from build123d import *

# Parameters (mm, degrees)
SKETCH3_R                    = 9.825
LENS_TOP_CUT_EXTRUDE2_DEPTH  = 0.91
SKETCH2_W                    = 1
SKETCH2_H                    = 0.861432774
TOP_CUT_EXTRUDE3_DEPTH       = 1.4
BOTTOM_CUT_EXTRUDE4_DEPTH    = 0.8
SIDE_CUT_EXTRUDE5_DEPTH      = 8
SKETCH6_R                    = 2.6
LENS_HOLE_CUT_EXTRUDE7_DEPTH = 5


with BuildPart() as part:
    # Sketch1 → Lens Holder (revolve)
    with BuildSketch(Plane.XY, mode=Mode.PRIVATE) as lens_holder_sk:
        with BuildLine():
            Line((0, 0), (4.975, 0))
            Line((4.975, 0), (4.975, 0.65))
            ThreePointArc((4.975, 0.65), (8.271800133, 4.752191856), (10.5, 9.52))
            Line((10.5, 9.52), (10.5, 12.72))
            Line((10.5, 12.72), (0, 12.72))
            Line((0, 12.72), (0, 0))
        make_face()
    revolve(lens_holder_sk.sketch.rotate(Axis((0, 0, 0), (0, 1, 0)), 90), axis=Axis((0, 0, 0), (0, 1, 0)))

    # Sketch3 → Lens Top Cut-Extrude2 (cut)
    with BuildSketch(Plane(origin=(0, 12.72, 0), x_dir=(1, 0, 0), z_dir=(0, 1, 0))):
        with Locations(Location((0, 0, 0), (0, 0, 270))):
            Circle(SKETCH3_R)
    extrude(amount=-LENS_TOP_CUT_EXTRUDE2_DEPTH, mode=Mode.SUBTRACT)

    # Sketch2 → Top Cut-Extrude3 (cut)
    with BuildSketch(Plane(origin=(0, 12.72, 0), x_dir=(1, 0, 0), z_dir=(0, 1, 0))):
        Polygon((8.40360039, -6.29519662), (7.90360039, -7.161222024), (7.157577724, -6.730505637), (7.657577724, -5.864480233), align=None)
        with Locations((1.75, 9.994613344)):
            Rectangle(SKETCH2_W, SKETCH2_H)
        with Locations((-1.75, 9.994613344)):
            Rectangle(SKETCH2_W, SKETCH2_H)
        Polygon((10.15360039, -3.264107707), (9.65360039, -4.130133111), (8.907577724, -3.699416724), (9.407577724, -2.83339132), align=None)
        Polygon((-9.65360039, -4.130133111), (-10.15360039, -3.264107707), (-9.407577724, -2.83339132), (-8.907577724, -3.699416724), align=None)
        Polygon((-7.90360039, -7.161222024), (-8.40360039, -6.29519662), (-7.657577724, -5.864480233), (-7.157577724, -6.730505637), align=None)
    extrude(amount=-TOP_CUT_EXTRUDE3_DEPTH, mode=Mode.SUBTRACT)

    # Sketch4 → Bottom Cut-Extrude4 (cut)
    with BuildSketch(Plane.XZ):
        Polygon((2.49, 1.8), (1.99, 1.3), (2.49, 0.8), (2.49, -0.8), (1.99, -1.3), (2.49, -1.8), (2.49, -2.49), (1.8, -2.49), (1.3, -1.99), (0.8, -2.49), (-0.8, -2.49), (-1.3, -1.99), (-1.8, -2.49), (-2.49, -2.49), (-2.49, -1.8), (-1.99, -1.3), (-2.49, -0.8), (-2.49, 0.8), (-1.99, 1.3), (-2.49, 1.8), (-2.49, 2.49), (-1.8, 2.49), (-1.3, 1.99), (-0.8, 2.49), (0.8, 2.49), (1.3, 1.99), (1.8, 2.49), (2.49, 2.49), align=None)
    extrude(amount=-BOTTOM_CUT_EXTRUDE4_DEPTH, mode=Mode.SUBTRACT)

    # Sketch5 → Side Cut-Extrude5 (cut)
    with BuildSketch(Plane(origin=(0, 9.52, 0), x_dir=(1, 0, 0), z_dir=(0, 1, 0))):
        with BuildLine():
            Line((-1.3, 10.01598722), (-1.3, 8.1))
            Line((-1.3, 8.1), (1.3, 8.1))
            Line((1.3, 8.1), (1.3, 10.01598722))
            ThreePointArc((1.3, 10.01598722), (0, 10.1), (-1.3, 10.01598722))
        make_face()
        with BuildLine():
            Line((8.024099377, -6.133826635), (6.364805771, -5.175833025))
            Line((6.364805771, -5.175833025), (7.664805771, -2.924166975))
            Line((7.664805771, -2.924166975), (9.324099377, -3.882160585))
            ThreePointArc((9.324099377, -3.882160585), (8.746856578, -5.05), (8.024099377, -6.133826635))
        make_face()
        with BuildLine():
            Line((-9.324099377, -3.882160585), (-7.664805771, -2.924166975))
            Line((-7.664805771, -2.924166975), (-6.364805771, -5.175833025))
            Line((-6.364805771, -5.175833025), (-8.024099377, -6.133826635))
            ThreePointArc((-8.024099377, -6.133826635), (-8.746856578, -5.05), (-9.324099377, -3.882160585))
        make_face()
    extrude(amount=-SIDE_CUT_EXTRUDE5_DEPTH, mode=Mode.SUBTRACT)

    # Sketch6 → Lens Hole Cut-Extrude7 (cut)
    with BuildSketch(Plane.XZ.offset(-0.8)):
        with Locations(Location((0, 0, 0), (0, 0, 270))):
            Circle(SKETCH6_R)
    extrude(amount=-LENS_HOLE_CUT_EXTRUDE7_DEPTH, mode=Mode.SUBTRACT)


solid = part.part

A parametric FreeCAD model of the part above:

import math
import FreeCAD as App
import Part
import Sketcher

V = App.Vector
Q = App.Units.Quantity

doc = App.newDocument("Part")
params = doc.addObject("Spreadsheet::Sheet", "Params")
for row, (alias, value) in enumerate([
    ("sketch1_radius", "22 mm"),
    ("sketch1_width", "10.5 mm"),
    ("sketch1_height", "3.2 mm"),
    ("sketch1_height2", "0.65 mm"),
    ("sketch1_height3", "12.72 mm"),
    ("revolution_angle", "360 deg"),
    ("sketch2_diameter", "19.65 mm"),
    ("pocket1_length", "0.91 mm"),
    ("sketch3_width", "1 mm"),
    ("sketch3_length", "1 mm"),
    ("pocket2_length", "1.4 mm"),
    ("sketch4_width", "1.6 mm"),
    ("sketch4_width2", "0.69 mm"),
    ("pocket3_length", "0.8 mm"),
    ("sketch5_radius", "10.1 mm"),
    ("sketch5_width", "2.6 mm"),
    ("sketch5_length", "2.6 mm"),
    ("pocket4_length", "8 mm"),
    ("sketch6_diameter", "5.2 mm"),
    ("pocket5_length", "5 mm"),
], start=1):
    params.set(f"A{row}", alias)
    params.set(f"B{row}", "=" + value)
    params.setAlias(f"B{row}", alias)

body = doc.addObject("PartDesign::Body", "Body")

sketch1 = doc.addObject("Sketcher::SketchObject", "Sketch")
body.addObject(sketch1)
sketch1.AttachmentSupport = (doc.XY_Plane, [""])
sketch1.MapMode = "FlatFace"
sketch1.addGeometry([
    Part.LineSegment(V(0, 0, 0), V(5, 0, 0)),
    Part.LineSegment(V(5, 0, 0), V(5, 0.7, 0)),
    Part.ArcOfCircle(Part.Circle(V(-10.4, 16.4, 0), V(0, 0, 1), 22), math.radians(-46), math.radians(-18)),
    Part.LineSegment(V(10.5, 9.5, 0), V(10.5, 12.7, 0)),
    Part.LineSegment(V(10.5, 12.7, 0), V(0, 12.7, 0)),
    Part.LineSegment(V(0, 12.7, 0), V(0, 0, 0)),
], False)
sketch1.addConstraint([
    Sketcher.Constraint("Coincident", 0, 2, 1, 1),
    Sketcher.Constraint("Coincident", 1, 2, 2, 1),
    Sketcher.Constraint("Coincident", 2, 2, 3, 1),
    Sketcher.Constraint("Coincident", 3, 2, 4, 1),
    Sketcher.Constraint("Coincident", 4, 2, 5, 1),
    Sketcher.Constraint("Coincident", 5, 2, 0, 1),
    Sketcher.Constraint("Horizontal", 0),
    Sketcher.Constraint("Vertical", 1),
    Sketcher.Constraint("Vertical", 3),
    Sketcher.Constraint("Horizontal", 4),
    Sketcher.Constraint("Vertical", 5),
    Sketcher.Constraint("Coincident", 5, 2, -1, 1),
    Sketcher.Constraint("Radius", 2, 22.0),
    Sketcher.Constraint("DistanceX", 4, 2, 4, 1, 10.5),
    Sketcher.Constraint("DistanceY", 3, 1, 3, 2, 3.2),
    Sketcher.Constraint("DistanceY", 1, 1, 1, 2, 0.65),
    Sketcher.Constraint("DistanceY", 5, 2, 5, 1, 12.72),
    Sketcher.Constraint("DistanceX", 0, 1, 0, 2, 4.975),
])
sketch1.setExpression("Constraints[12]", "Params.sketch1_radius")
sketch1.setExpression("Constraints[13]", "Params.sketch1_width")
sketch1.setExpression("Constraints[14]", "Params.sketch1_height")
sketch1.setExpression("Constraints[15]", "Params.sketch1_height2")
sketch1.setExpression("Constraints[16]", "Params.sketch1_height3")
revolution = doc.addObject("PartDesign::Revolution", "Revolution")
body.addObject(revolution)
revolution.Profile = sketch1
revolution.ReferenceAxis = (sketch1, ["V_Axis"])
revolution.setExpression("Angle", "Params.revolution_angle")

sketch2 = doc.addObject("Sketcher::SketchObject", "Sketch001")
body.addObject(sketch2)
sketch2.AttachmentSupport = (doc.XZ_Plane, [""])
sketch2.MapMode = "FlatFace"
sketch2.AttachmentOffset = App.Placement(V(0, 0, -12.72), App.Rotation())
sketch2.addGeometry(Part.Circle(V(0, 0, 0), V(0, 0, 1), 10), False)
sketch2.addConstraint([
    Sketcher.Constraint("Coincident", 0, 3, -1, 1),
    Sketcher.Constraint("Diameter", 0, 19.65),
])
sketch2.setExpression("Constraints[1]", "Params.sketch2_diameter")
pocket1 = doc.addObject("PartDesign::Pocket", "Pocket")
body.addObject(pocket1)
pocket1.Profile = sketch2
pocket1.setExpression("Length", "Params.pocket1_length")
pocket1.Reversed = True

sketch3 = doc.addObject("Sketcher::SketchObject", "Sketch002")
body.addObject(sketch3)
sketch3.AttachmentSupport = (doc.XZ_Plane, [""])
sketch3.MapMode = "FlatFace"
sketch3.AttachmentOffset = App.Placement(V(0, 0, -12.72), App.Rotation())
sketch3.addGeometry([
    Part.LineSegment(V(7.9, 7.2, 0), V(8.4, 6.3, 0)),
    Part.LineSegment(V(8.4, 6.3, 0), V(7.7, 5.9, 0)),
    Part.LineSegment(V(7.7, 5.9, 0), V(7.2, 6.7, 0)),
    Part.LineSegment(V(7.2, 6.7, 0), V(7.9, 7.2, 0)),
    Part.LineSegment(V(1.2, -10.4, 0), V(1.2, -9.6, 0)),
    Part.LineSegment(V(1.2, -9.6, 0), V(2.2, -9.6, 0)),
    Part.LineSegment(V(2.2, -9.6, 0), V(2.2, -10.4, 0)),
    Part.LineSegment(V(2.2, -10.4, 0), V(1.2, -10.4, 0)),
    Part.LineSegment(V(-2.2, -10.4, 0), V(-2.2, -9.6, 0)),
    Part.LineSegment(V(-2.2, -9.6, 0), V(-1.2, -9.6, 0)),
    Part.LineSegment(V(-1.2, -9.6, 0), V(-1.2, -10.4, 0)),
    Part.LineSegment(V(-1.2, -10.4, 0), V(-2.2, -10.4, 0)),
    Part.LineSegment(V(9.7, 4.1, 0), V(10.2, 3.3, 0)),
    Part.LineSegment(V(10.2, 3.3, 0), V(9.4, 2.8, 0)),
    Part.LineSegment(V(9.4, 2.8, 0), V(8.9, 3.7, 0)),
    Part.LineSegment(V(8.9, 3.7, 0), V(9.7, 4.1, 0)),
    Part.LineSegment(V(-10.2, 3.3, 0), V(-9.7, 4.1, 0)),
    Part.LineSegment(V(-9.7, 4.1, 0), V(-8.9, 3.7, 0)),
    Part.LineSegment(V(-8.9, 3.7, 0), V(-9.4, 2.8, 0)),
    Part.LineSegment(V(-9.4, 2.8, 0), V(-10.2, 3.3, 0)),
    Part.LineSegment(V(-8.4, 6.3, 0), V(-7.9, 7.2, 0)),
    Part.LineSegment(V(-7.9, 7.2, 0), V(-7.2, 6.7, 0)),
    Part.LineSegment(V(-7.2, 6.7, 0), V(-7.7, 5.9, 0)),
    Part.LineSegment(V(-7.7, 5.9, 0), V(-8.4, 6.3, 0)),
], False)
sketch3.addConstraint([
    Sketcher.Constraint("Coincident", 0, 2, 1, 1),
    Sketcher.Constraint("Coincident", 1, 2, 2, 1),
    Sketcher.Constraint("Coincident", 2, 2, 3, 1),
    Sketcher.Constraint("Coincident", 3, 2, 0, 1),
    Sketcher.Constraint("Coincident", 4, 2, 5, 1),
    Sketcher.Constraint("Coincident", 5, 2, 6, 1),
    Sketcher.Constraint("Coincident", 6, 2, 7, 1),
    Sketcher.Constraint("Coincident", 7, 2, 4, 1),
    Sketcher.Constraint("Coincident", 8, 2, 9, 1),
    Sketcher.Constraint("Coincident", 9, 2, 10, 1),
    Sketcher.Constraint("Coincident", 10, 2, 11, 1),
    Sketcher.Constraint("Coincident", 11, 2, 8, 1),
    Sketcher.Constraint("Coincident", 12, 2, 13, 1),
    Sketcher.Constraint("Coincident", 13, 2, 14, 1),
    Sketcher.Constraint("Coincident", 14, 2, 15, 1),
    Sketcher.Constraint("Coincident", 15, 2, 12, 1),
    Sketcher.Constraint("Coincident", 16, 2, 17, 1),
    Sketcher.Constraint("Coincident", 17, 2, 18, 1),
    Sketcher.Constraint("Coincident", 18, 2, 19, 1),
    Sketcher.Constraint("Coincident", 19, 2, 16, 1),
    Sketcher.Constraint("Coincident", 20, 2, 21, 1),
    Sketcher.Constraint("Coincident", 21, 2, 22, 1),
    Sketcher.Constraint("Coincident", 22, 2, 23, 1),
    Sketcher.Constraint("Coincident", 23, 2, 20, 1),
    Sketcher.Constraint("Vertical", 4),
    Sketcher.Constraint("Horizontal", 5),
    Sketcher.Constraint("Vertical", 6),
    Sketcher.Constraint("Horizontal", 7),
    Sketcher.Constraint("Vertical", 8),
    Sketcher.Constraint("Horizontal", 9),
    Sketcher.Constraint("Vertical", 10),
    Sketcher.Constraint("Horizontal", 11),
    Sketcher.Constraint("Symmetric", 5, 2, 8, 2, -2),
    Sketcher.Constraint("Symmetric", 7, 2, 10, 2, -2),
    Sketcher.Constraint("Symmetric", 15, 2, 16, 2, -2),
    Sketcher.Constraint("Symmetric", 14, 2, 17, 2, -2),
    Sketcher.Constraint("Symmetric", 13, 2, 18, 2, -2),
    Sketcher.Constraint("Symmetric", 12, 2, 19, 2, -2),
    Sketcher.Constraint("Symmetric", 3, 2, 20, 2, -2),
    Sketcher.Constraint("Symmetric", 2, 2, 21, 2, -2),
    Sketcher.Constraint("Symmetric", 1, 2, 22, 2, -2),
    Sketcher.Constraint("Symmetric", 0, 2, 23, 2, -2),
    Sketcher.Constraint("Perpendicular", 0, 1),
    Sketcher.Constraint("Perpendicular", 1, 2),
    Sketcher.Constraint("Perpendicular", 2, 3),
    Sketcher.Constraint("Perpendicular", 3, 12),
    Sketcher.Constraint("Perpendicular", 12, 13),
    Sketcher.Constraint("Perpendicular", 13, 14),
    Sketcher.Constraint("Perpendicular", 14, 15),
    Sketcher.Constraint("Equal", 2, 12),
    Sketcher.Constraint("Equal", 3, 13),
    Sketcher.Constraint("DistanceX", 5, 1, 5, 2, 1.0),
    Sketcher.Constraint("Angle", 0, Q("-60 deg")),
    Sketcher.Constraint("Distance", 0, 1.0),
    Sketcher.Constraint("DistanceX", 8, 2, 4, 2, 3.5),
    Sketcher.Constraint("DistanceX", 0, 2, 12, 2, 1.75),
    Sketcher.Constraint("DistanceX", -1, 1, 0, 2, 8.4036),
    Sketcher.Constraint("DistanceY", 4, 1, 4, 2, 0.861433),
    Sketcher.Constraint("DistanceY", -1, 1, 1, 2, 5.86448),
    Sketcher.Constraint("DistanceY", 6, 2, -1, 1, 10.42533),
    Sketcher.Constraint("DistanceY", -1, 1, 13, 2, 2.833391),
    Sketcher.Constraint("DistanceY", 0, 2, 2, 2, 0.435309),
])
sketch3.setExpression("Constraints[51]", "Params.sketch3_width")
sketch3.setExpression("Constraints[53]", "Params.sketch3_length")
pocket2 = doc.addObject("PartDesign::Pocket", "Pocket001")
body.addObject(pocket2)
pocket2.Profile = sketch3
pocket2.setExpression("Length", "Params.pocket2_length")
pocket2.Reversed = True

sketch4 = doc.addObject("Sketcher::SketchObject", "Sketch003")
body.addObject(sketch4)
sketch4.AttachmentSupport = (doc.XZ_Plane, [""])
sketch4.MapMode = "FlatFace"
sketch4.addGeometry([
    Part.LineSegment(V(2, 1.3, 0), V(2.5, 1.8, 0)),
    Part.LineSegment(V(2.5, 1.8, 0), V(2.5, 2.5, 0)),
    Part.LineSegment(V(2.5, 2.5, 0), V(1.8, 2.5, 0)),
    Part.LineSegment(V(1.8, 2.5, 0), V(1.3, 2, 0)),
    Part.LineSegment(V(1.3, 2, 0), V(0.8, 2.5, 0)),
    Part.LineSegment(V(0.8, 2.5, 0), V(-0.8, 2.5, 0)),
    Part.LineSegment(V(-0.8, 2.5, 0), V(-1.3, 2, 0)),
    Part.LineSegment(V(-1.3, 2, 0), V(-1.8, 2.5, 0)),
    Part.LineSegment(V(-1.8, 2.5, 0), V(-2.5, 2.5, 0)),
    Part.LineSegment(V(-2.5, 2.5, 0), V(-2.5, 1.8, 0)),
    Part.LineSegment(V(-2.5, 1.8, 0), V(-2, 1.3, 0)),
    Part.LineSegment(V(-2, 1.3, 0), V(-2.5, 0.8, 0)),
    Part.LineSegment(V(-2.5, 0.8, 0), V(-2.5, -0.8, 0)),
    Part.LineSegment(V(-2.5, -0.8, 0), V(-2, -1.3, 0)),
    Part.LineSegment(V(-2, -1.3, 0), V(-2.5, -1.8, 0)),
    Part.LineSegment(V(-2.5, -1.8, 0), V(-2.5, -2.5, 0)),
    Part.LineSegment(V(-2.5, -2.5, 0), V(-1.8, -2.5, 0)),
    Part.LineSegment(V(-1.8, -2.5, 0), V(-1.3, -2, 0)),
    Part.LineSegment(V(-1.3, -2, 0), V(-0.8, -2.5, 0)),
    Part.LineSegment(V(-0.8, -2.5, 0), V(0.8, -2.5, 0)),
    Part.LineSegment(V(0.8, -2.5, 0), V(1.3, -2, 0)),
    Part.LineSegment(V(1.3, -2, 0), V(1.8, -2.5, 0)),
    Part.LineSegment(V(1.8, -2.5, 0), V(2.5, -2.5, 0)),
    Part.LineSegment(V(2.5, -2.5, 0), V(2.5, -1.8, 0)),
    Part.LineSegment(V(2.5, -1.8, 0), V(2, -1.3, 0)),
    Part.LineSegment(V(2, -1.3, 0), V(2.5, -0.8, 0)),
    Part.LineSegment(V(2.5, -0.8, 0), V(2.5, 0.8, 0)),
    Part.LineSegment(V(2.5, 0.8, 0), V(2, 1.3, 0)),
], False)
sketch4.addConstraint([
    Sketcher.Constraint("Coincident", 0, 2, 1, 1),
    Sketcher.Constraint("Coincident", 1, 2, 2, 1),
    Sketcher.Constraint("Coincident", 2, 2, 3, 1),
    Sketcher.Constraint("Coincident", 3, 2, 4, 1),
    Sketcher.Constraint("Coincident", 4, 2, 5, 1),
    Sketcher.Constraint("Coincident", 5, 2, 6, 1),
    Sketcher.Constraint("Coincident", 6, 2, 7, 1),
    Sketcher.Constraint("Coincident", 7, 2, 8, 1),
    Sketcher.Constraint("Coincident", 8, 2, 9, 1),
    Sketcher.Constraint("Coincident", 9, 2, 10, 1),
    Sketcher.Constraint("Coincident", 10, 2, 11, 1),
    Sketcher.Constraint("Coincident", 11, 2, 12, 1),
    Sketcher.Constraint("Coincident", 12, 2, 13, 1),
    Sketcher.Constraint("Coincident", 13, 2, 14, 1),
    Sketcher.Constraint("Coincident", 14, 2, 15, 1),
    Sketcher.Constraint("Coincident", 15, 2, 16, 1),
    Sketcher.Constraint("Coincident", 16, 2, 17, 1),
    Sketcher.Constraint("Coincident", 17, 2, 18, 1),
    Sketcher.Constraint("Coincident", 18, 2, 19, 1),
    Sketcher.Constraint("Coincident", 19, 2, 20, 1),
    Sketcher.Constraint("Coincident", 20, 2, 21, 1),
    Sketcher.Constraint("Coincident", 21, 2, 22, 1),
    Sketcher.Constraint("Coincident", 22, 2, 23, 1),
    Sketcher.Constraint("Coincident", 23, 2, 24, 1),
    Sketcher.Constraint("Coincident", 24, 2, 25, 1),
    Sketcher.Constraint("Coincident", 25, 2, 26, 1),
    Sketcher.Constraint("Coincident", 26, 2, 27, 1),
    Sketcher.Constraint("Coincident", 27, 2, 0, 1),
    Sketcher.Constraint("Vertical", 1),
    Sketcher.Constraint("Horizontal", 2),
    Sketcher.Constraint("Horizontal", 5),
    Sketcher.Constraint("Horizontal", 8),
    Sketcher.Constraint("Vertical", 9),
    Sketcher.Constraint("Vertical", 12),
    Sketcher.Constraint("Vertical", 15),
    Sketcher.Constraint("Horizontal", 16),
    Sketcher.Constraint("Horizontal", 19),
    Sketcher.Constraint("Horizontal", 22),
    Sketcher.Constraint("Vertical", 23),
    Sketcher.Constraint("Vertical", 26),
    Sketcher.Constraint("Symmetric", 0, 2, 14, 2, -1, 1),
    Sketcher.Constraint("Symmetric", 2, 2, 16, 2, -1, 1),
    Sketcher.Constraint("Symmetric", 3, 2, 17, 2, -1, 1),
    Sketcher.Constraint("Symmetric", 4, 2, 18, 2, -1, 1),
    Sketcher.Constraint("Symmetric", 6, 2, 20, 2, -1, 1),
    Sketcher.Constraint("Symmetric", 7, 2, 21, 2, -1, 1),
    Sketcher.Constraint("Symmetric", 9, 2, 23, 2, -1, 1),
    Sketcher.Constraint("Symmetric", 10, 2, 24, 2, -1, 1),
    Sketcher.Constraint("Symmetric", 11, 2, 25, 2, -1, 1),
    Sketcher.Constraint("Symmetric", 13, 2, 27, 2, -1, 1),
    Sketcher.Constraint("Symmetric", 3, 2, 6, 2, -2),
    Sketcher.Constraint("Symmetric", 2, 2, 7, 2, -2),
    Sketcher.Constraint("Symmetric", 0, 2, 9, 2, -2),
    Sketcher.Constraint("Symmetric", 13, 2, 24, 2, -2),
    Sketcher.Constraint("Parallel", 0, 3),
    Sketcher.Constraint("Perpendicular", 3, 4),
    Sketcher.Constraint("Perpendicular", 4, 6),
    Sketcher.Constraint("Perpendicular", 6, 7),
    Sketcher.Constraint("Perpendicular", 10, 11),
    Sketcher.Constraint("Perpendicular", 11, 13),
    Sketcher.Constraint("Perpendicular", 18, 20),
    Sketcher.Constraint("Perpendicular", 25, 27),
    Sketcher.Constraint("Horizontal", 2, 2, 4, 2),
    Sketcher.Constraint("Vertical", 9, 2, 11, 2),
    Sketcher.Constraint("Equal", 22, 1),
    Sketcher.Constraint("Equal", 19, 12),
    Sketcher.Constraint("Equal", 0, 3),
    Sketcher.Constraint("DistanceX", 5, 2, 5, 1, 1.6),
    Sketcher.Constraint("DistanceX", 4, 2, 2, 2, 1.0),
    Sketcher.Constraint("DistanceX", 2, 2, 2, 1, 0.69),
])
sketch4.setExpression("Constraints[67]", "Params.sketch4_width")
sketch4.setExpression("Constraints[69]", "Params.sketch4_width2")
pocket3 = doc.addObject("PartDesign::Pocket", "Pocket002")
body.addObject(pocket3)
pocket3.Profile = sketch4
pocket3.setExpression("Length", "Params.pocket3_length")

sketch5 = doc.addObject("Sketcher::SketchObject", "Sketch004")
body.addObject(sketch5)
sketch5.AttachmentSupport = (doc.XZ_Plane, [""])
sketch5.MapMode = "FlatFace"
sketch5.AttachmentOffset = App.Placement(V(0, 0, -9.52), App.Rotation())
sketch5.addGeometry([
    Part.LineSegment(V(-1.3, -10, 0), V(-1.3, -8.1, 0)),
    Part.LineSegment(V(-1.3, -8.1, 0), V(1.3, -8.1, 0)),
    Part.LineSegment(V(1.3, -8.1, 0), V(1.3, -10, 0)),
    Part.ArcOfCircle(Part.Circle(V(0, 0, 0), V(0, 0, 1), 10.1), math.radians(-97.4), math.radians(-82.6)),
    Part.LineSegment(V(6.4, 5.2, 0), V(8, 6.1, 0)),
    Part.ArcOfCircle(Part.Circle(V(0, 0, 0), V(0, 0, 1), 10.1), math.radians(22.6), math.radians(37.4)),
    Part.LineSegment(V(9.3, 3.9, 0), V(7.7, 2.9, 0)),
    Part.LineSegment(V(7.7, 2.9, 0), V(6.4, 5.2, 0)),
    Part.LineSegment(V(-7.7, 2.9, 0), V(-9.3, 3.9, 0)),
    Part.ArcOfCircle(Part.Circle(V(0, 0, 0), V(0, 0, 1), 10.1), math.radians(142.6), math.radians(157.4)),
    Part.LineSegment(V(-8, 6.1, 0), V(-6.4, 5.2, 0)),
    Part.LineSegment(V(-6.4, 5.2, 0), V(-7.7, 2.9, 0)),
], False)
sketch5.addConstraint([
    Sketcher.Constraint("Coincident", 0, 2, 1, 1),
    Sketcher.Constraint("Coincident", 1, 2, 2, 1),
    Sketcher.Constraint("Coincident", 2, 2, 3, 2),
    Sketcher.Constraint("Coincident", 3, 1, 0, 1),
    Sketcher.Constraint("Coincident", 4, 2, 5, 2),
    Sketcher.Constraint("Coincident", 5, 1, 6, 1),
    Sketcher.Constraint("Coincident", 6, 2, 7, 1),
    Sketcher.Constraint("Coincident", 7, 2, 4, 1),
    Sketcher.Constraint("Coincident", 8, 2, 9, 2),
    Sketcher.Constraint("Coincident", 9, 1, 10, 1),
    Sketcher.Constraint("Coincident", 10, 2, 11, 1),
    Sketcher.Constraint("Coincident", 11, 2, 8, 1),
    Sketcher.Constraint("Vertical", 0),
    Sketcher.Constraint("Horizontal", 1),
    Sketcher.Constraint("Vertical", 2),
    Sketcher.Constraint("Coincident", 3, 3, -1, 1),
    Sketcher.Constraint("Coincident", 5, 3, -1, 1),
    Sketcher.Constraint("Coincident", 9, 3, -1, 1),
    Sketcher.Constraint("Equal", 3, 5),
    Sketcher.Constraint("Equal", 5, 9),
    Sketcher.Constraint("Symmetric", 7, 2, 10, 2, -2),
    Sketcher.Constraint("Symmetric", 6, 2, 11, 2, -2),
    Sketcher.Constraint("Parallel", 4, 6),
    Sketcher.Constraint("Perpendicular", 6, 7),
    Sketcher.Constraint("Parallel", 8, 10),
    Sketcher.Constraint("Perpendicular", 10, 11),
    Sketcher.Constraint("Horizontal", 2, 2, 3, 1),
    Sketcher.Constraint("Equal", 4, 6),
    Sketcher.Constraint("Radius", 3, 10.1),
    Sketcher.Constraint("Angle", 4, Q("30 deg")),
    Sketcher.Constraint("DistanceX", 1, 1, 1, 2, 2.6),
    Sketcher.Constraint("Distance", 7, 2.6),
    Sketcher.Constraint("DistanceY", 0, 2, -1, 1, 8.1),
    Sketcher.Constraint("DistanceY", 6, 2, 4, 2, 3.20966),
])
sketch5.setExpression("Constraints[28]", "Params.sketch5_radius")
sketch5.setExpression("Constraints[30]", "Params.sketch5_width")
sketch5.setExpression("Constraints[31]", "Params.sketch5_length")
pocket4 = doc.addObject("PartDesign::Pocket", "Pocket003")
body.addObject(pocket4)
pocket4.Profile = sketch5
pocket4.setExpression("Length", "Params.pocket4_length")
pocket4.Reversed = True

sketch6 = doc.addObject("Sketcher::SketchObject", "Sketch005")
body.addObject(sketch6)
sketch6.AttachmentSupport = (doc.XZ_Plane, [""])
sketch6.MapMode = "FlatFace"
sketch6.AttachmentOffset = App.Placement(V(0, 0, -0.8), App.Rotation())
sketch6.addGeometry(Part.Circle(V(0, 0, 0), V(0, 0, 1), 2.6), False)
sketch6.addConstraint([
    Sketcher.Constraint("Coincident", 0, 3, -1, 1),
    Sketcher.Constraint("Diameter", 0, 5.2),
])
sketch6.setExpression("Constraints[1]", "Params.sketch6_diameter")
pocket5 = doc.addObject("PartDesign::Pocket", "Pocket004")
body.addObject(pocket5)
pocket5.Profile = sketch6
pocket5.setExpression("Length", "Params.pocket5_length")

doc.recompute()
